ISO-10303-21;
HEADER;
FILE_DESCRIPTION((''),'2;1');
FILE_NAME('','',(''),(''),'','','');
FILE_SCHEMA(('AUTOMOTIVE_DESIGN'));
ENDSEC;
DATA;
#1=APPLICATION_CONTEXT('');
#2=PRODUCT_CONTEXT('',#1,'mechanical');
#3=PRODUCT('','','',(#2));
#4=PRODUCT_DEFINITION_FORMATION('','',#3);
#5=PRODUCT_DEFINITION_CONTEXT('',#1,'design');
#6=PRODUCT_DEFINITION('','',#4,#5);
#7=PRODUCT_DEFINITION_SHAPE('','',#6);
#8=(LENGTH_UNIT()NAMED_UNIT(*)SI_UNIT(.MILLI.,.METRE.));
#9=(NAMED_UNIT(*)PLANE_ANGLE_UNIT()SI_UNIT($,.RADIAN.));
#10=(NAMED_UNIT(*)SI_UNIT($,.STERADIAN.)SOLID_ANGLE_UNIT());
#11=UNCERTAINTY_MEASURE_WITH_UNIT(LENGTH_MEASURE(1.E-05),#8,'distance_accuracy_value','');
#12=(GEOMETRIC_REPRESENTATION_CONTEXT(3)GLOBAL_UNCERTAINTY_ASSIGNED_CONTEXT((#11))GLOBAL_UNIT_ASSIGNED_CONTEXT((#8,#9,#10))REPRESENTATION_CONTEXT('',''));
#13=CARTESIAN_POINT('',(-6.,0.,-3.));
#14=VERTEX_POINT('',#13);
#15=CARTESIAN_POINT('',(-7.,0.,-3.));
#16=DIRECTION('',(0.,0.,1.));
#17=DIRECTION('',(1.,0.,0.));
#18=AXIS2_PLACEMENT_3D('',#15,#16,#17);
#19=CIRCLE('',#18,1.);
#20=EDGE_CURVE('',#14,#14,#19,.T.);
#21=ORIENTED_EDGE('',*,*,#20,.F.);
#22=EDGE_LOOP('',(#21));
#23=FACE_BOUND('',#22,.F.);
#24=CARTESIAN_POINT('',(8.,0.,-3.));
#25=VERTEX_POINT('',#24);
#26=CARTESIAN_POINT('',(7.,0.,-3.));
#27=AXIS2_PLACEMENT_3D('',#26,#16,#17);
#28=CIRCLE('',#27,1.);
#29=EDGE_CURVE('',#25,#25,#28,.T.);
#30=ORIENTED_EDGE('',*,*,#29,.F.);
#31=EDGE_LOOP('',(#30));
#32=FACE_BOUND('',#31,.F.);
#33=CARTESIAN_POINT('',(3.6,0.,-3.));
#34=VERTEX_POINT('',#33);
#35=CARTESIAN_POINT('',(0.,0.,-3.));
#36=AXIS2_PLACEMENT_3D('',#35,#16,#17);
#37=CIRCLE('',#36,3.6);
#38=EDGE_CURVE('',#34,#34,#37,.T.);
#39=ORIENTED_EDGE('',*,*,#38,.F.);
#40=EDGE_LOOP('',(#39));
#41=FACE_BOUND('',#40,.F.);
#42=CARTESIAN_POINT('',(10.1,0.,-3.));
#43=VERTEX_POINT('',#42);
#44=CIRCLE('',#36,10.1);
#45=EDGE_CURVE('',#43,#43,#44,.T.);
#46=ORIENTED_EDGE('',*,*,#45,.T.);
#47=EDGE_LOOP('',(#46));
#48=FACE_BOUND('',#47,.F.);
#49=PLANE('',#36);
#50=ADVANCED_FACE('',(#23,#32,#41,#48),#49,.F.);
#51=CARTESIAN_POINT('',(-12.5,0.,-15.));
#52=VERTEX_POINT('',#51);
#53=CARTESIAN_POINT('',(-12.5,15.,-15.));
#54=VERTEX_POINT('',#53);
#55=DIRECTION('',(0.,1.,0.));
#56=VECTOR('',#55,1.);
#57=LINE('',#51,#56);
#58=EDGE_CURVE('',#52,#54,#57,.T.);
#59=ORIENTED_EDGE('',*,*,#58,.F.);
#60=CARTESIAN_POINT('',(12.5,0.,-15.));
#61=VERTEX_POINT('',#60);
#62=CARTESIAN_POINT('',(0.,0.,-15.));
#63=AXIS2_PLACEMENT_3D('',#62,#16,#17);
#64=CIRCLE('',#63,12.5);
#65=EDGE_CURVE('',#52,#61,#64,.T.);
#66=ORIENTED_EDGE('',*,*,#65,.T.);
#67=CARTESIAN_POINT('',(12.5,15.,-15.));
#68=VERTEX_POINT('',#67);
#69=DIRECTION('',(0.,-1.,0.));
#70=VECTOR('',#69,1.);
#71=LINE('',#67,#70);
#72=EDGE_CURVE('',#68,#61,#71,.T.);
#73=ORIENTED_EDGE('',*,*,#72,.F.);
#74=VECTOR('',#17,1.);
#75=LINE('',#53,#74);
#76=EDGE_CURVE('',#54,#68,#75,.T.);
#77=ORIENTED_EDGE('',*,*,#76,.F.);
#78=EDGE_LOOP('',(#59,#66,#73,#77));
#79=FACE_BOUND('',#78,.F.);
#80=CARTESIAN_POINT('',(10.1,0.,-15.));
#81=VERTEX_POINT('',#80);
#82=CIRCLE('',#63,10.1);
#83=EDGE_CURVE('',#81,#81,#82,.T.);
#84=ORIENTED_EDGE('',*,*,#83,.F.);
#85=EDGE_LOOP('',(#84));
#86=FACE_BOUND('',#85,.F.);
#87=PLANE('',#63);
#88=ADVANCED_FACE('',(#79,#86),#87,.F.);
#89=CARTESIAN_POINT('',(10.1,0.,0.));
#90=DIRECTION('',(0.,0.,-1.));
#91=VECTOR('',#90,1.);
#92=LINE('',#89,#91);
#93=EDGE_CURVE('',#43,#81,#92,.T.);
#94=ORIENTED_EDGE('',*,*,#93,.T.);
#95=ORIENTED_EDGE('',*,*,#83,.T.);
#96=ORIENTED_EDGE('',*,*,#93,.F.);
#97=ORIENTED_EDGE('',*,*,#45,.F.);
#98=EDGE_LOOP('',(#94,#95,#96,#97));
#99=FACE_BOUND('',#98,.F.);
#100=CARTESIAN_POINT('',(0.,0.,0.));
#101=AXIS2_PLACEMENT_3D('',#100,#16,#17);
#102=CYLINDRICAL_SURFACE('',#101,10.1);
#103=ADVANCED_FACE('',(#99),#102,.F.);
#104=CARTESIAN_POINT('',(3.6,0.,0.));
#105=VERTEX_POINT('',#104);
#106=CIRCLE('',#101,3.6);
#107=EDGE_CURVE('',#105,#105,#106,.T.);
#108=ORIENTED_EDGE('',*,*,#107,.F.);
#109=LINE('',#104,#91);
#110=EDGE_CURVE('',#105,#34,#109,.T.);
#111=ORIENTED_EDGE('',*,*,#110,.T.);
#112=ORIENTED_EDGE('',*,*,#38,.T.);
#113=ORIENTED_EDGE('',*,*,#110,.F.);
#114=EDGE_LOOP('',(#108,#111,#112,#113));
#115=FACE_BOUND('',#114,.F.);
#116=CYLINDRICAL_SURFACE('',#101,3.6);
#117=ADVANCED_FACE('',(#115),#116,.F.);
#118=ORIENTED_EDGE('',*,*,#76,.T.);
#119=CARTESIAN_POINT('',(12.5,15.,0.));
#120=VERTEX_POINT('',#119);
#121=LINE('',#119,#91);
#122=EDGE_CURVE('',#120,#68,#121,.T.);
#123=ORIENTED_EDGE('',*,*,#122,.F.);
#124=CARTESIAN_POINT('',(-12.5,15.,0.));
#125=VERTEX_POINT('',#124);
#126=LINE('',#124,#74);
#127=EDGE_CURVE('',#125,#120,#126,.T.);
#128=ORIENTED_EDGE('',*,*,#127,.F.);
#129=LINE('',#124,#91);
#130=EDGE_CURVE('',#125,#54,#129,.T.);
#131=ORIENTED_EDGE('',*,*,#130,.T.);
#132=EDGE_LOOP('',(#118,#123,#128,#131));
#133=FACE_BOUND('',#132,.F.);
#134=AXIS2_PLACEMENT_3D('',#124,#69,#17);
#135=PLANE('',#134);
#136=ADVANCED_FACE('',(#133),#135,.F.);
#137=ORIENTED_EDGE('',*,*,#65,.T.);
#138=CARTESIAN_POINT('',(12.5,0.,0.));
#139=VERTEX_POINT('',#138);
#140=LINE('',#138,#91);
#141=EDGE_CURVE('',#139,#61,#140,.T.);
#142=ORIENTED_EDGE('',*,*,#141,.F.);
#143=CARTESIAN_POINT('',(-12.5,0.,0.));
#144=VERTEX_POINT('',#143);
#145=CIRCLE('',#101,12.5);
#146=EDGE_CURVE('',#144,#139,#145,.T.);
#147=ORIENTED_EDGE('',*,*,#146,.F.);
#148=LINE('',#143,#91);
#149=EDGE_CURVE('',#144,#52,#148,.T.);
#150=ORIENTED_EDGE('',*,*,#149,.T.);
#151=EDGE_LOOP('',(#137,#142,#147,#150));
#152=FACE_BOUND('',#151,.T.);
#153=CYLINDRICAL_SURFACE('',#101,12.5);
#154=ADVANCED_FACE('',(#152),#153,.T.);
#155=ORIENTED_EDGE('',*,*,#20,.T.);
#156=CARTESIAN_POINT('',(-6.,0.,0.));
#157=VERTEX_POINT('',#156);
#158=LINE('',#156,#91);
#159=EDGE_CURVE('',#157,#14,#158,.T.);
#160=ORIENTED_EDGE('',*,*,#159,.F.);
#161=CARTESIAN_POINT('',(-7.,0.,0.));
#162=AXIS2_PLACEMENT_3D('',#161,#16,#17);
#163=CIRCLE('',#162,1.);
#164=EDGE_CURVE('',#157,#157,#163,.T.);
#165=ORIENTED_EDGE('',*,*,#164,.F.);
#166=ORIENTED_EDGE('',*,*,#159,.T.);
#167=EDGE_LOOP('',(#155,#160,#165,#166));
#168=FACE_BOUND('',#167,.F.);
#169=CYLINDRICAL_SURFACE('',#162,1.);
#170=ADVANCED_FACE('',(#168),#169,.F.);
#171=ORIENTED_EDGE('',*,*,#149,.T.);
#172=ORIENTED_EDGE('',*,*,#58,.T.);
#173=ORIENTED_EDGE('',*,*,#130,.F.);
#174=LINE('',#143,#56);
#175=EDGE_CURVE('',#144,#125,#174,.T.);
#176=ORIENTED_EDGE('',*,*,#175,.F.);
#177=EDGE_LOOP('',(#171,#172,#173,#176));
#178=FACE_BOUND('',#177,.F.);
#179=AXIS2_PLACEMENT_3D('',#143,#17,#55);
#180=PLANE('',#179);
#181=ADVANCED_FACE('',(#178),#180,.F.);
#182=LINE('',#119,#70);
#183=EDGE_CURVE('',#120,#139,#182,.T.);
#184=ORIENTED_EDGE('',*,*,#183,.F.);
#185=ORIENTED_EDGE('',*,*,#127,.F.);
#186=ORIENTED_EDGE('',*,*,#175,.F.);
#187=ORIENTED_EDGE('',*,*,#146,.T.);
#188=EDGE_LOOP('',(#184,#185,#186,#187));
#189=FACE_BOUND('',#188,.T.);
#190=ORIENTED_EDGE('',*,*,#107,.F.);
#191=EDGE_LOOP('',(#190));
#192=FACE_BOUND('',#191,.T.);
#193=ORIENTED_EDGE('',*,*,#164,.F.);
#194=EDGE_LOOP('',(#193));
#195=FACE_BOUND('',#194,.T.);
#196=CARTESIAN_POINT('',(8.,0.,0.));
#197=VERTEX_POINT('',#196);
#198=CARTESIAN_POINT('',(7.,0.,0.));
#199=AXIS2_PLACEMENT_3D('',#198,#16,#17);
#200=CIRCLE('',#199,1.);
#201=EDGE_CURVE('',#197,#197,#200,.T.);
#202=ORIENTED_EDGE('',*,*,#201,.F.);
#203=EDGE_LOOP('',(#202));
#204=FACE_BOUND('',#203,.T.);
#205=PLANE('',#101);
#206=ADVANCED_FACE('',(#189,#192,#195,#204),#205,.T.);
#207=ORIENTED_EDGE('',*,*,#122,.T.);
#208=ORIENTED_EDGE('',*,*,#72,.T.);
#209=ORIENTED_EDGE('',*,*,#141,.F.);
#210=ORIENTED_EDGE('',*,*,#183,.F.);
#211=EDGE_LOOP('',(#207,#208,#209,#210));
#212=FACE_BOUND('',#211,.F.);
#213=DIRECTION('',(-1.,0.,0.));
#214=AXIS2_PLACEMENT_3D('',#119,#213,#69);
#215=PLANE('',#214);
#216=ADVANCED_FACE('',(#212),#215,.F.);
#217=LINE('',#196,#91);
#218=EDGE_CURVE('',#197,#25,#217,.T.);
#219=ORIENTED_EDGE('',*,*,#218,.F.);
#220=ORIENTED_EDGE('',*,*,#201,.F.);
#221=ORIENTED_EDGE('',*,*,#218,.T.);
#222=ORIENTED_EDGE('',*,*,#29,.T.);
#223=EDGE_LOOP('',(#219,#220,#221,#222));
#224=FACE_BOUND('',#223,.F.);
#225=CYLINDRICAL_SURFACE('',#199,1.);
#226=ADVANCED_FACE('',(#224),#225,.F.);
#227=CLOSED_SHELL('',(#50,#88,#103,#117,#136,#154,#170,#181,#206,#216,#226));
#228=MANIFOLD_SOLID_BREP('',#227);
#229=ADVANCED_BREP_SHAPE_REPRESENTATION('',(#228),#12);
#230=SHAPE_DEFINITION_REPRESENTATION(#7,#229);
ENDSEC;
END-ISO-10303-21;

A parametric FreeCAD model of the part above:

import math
import FreeCAD as App
import Part
import Sketcher

V = App.Vector

doc = App.newDocument("Part")
body = doc.addObject("PartDesign::Body", "Body")

# Sketch on XY plane
sketch1 = doc.addObject("Sketcher::SketchObject", "Sketch")
body.addObject(sketch1)
sketch1.AttachmentSupport = (doc.XY_Plane, [""])
sketch1.MapMode = "FlatFace"
sketch1.addGeometry(Part.ArcOfCircle(Part.Circle(V(0, 0, 0), V(0, 0, 1), 12), math.radians(180), math.radians(360)), False)
sketch1.addGeometry(Part.LineSegment(V(12, 0, 0), V(12, 15, 0)), False)
sketch1.addGeometry(Part.LineSegment(V(12, 15, 0), V(-12, 15, 0)), False)
sketch1.addGeometry(Part.LineSegment(V(-12, 15, 0), V(-12, 0, 0)), False)
sketch1.addGeometry(Part.Circle(V(0, 0, 0), V(0, 0, 1), 10), False)
sketch1.addConstraint(Sketcher.Constraint("Tangent", 0, 2, 1, 1))
sketch1.addConstraint(Sketcher.Constraint("Coincident", 1, 2, 2, 1))
sketch1.addConstraint(Sketcher.Constraint("Coincident", 2, 2, 3, 1))
sketch1.addConstraint(Sketcher.Constraint("Tangent", 3, 2, 0, 1))
sketch1.addConstraint(Sketcher.Constraint("Vertical", 1))
sketch1.addConstraint(Sketcher.Constraint("Horizontal", 2))
sketch1.addConstraint(Sketcher.Constraint("Vertical", 3))
sketch1.addConstraint(Sketcher.Constraint("Coincident", 0, 3, -1, 1))
sketch1.addConstraint(Sketcher.Constraint("Coincident", 4, 3, -1, 1))
sketch1.addConstraint(Sketcher.Constraint("Diameter", 4, 20.2))
sketch1.addConstraint(Sketcher.Constraint("Radius", 0, 12.5))
sketch1.addConstraint(Sketcher.Constraint("DistanceY", 1, 1, 1, 2, 15.0))
pad1 = doc.addObject("PartDesign::Pad", "Pad")
body.addObject(pad1)
pad1.Profile = sketch1
pad1.Length = 15
pad1.Reversed = True

# Sketch on XY plane
sketch2 = doc.addObject("Sketcher::SketchObject", "Sketch001")
body.addObject(sketch2)
sketch2.AttachmentSupport = (doc.XY_Plane, [""])
sketch2.MapMode = "FlatFace"
sketch2.addGeometry(Part.Circle(V(0, 0, 0), V(0, 0, 1), 10.1), False)
sketch2.addGeometry(Part.Circle(V(-7, 0, 0), V(0, 0, 1), 1), False)
sketch2.addGeometry(Part.Circle(V(0, 0, 0), V(0, 0, 1), 3.6), False)
sketch2.addGeometry(Part.Circle(V(7, 0, 0), V(0, 0, 1), 1), False)
sketch2.addConstraint(Sketcher.Constraint("Coincident", 0, 3, -1, 1))
sketch2.addConstraint(Sketcher.Constraint("Coincident", 2, 3, -1, 1))
sketch2.addConstraint(Sketcher.Constraint("Equal", 1, 3))
sketch2.addConstraint(Sketcher.Constraint("Symmetric", 1, 3, 3, 3, -1, 1))
sketch2.addConstraint(Sketcher.Constraint("PointOnObject", 1, 3, -1))
sketch2.addConstraint(Sketcher.Constraint("Diameter", 1, 2.0))
sketch2.addConstraint(Sketcher.Constraint("Diameter", 0, 20.2))
sketch2.addConstraint(Sketcher.Constraint("Diameter", 2, 7.2))
sketch2.addConstraint(Sketcher.Constraint("DistanceX", 1, 3, -1, 1, 7.0))
pad2 = doc.addObject("PartDesign::Pad", "Pad001")
body.addObject(pad2)
pad2.Profile = sketch2
pad2.Length = 3
pad2.Reversed = True

doc.recompute()
